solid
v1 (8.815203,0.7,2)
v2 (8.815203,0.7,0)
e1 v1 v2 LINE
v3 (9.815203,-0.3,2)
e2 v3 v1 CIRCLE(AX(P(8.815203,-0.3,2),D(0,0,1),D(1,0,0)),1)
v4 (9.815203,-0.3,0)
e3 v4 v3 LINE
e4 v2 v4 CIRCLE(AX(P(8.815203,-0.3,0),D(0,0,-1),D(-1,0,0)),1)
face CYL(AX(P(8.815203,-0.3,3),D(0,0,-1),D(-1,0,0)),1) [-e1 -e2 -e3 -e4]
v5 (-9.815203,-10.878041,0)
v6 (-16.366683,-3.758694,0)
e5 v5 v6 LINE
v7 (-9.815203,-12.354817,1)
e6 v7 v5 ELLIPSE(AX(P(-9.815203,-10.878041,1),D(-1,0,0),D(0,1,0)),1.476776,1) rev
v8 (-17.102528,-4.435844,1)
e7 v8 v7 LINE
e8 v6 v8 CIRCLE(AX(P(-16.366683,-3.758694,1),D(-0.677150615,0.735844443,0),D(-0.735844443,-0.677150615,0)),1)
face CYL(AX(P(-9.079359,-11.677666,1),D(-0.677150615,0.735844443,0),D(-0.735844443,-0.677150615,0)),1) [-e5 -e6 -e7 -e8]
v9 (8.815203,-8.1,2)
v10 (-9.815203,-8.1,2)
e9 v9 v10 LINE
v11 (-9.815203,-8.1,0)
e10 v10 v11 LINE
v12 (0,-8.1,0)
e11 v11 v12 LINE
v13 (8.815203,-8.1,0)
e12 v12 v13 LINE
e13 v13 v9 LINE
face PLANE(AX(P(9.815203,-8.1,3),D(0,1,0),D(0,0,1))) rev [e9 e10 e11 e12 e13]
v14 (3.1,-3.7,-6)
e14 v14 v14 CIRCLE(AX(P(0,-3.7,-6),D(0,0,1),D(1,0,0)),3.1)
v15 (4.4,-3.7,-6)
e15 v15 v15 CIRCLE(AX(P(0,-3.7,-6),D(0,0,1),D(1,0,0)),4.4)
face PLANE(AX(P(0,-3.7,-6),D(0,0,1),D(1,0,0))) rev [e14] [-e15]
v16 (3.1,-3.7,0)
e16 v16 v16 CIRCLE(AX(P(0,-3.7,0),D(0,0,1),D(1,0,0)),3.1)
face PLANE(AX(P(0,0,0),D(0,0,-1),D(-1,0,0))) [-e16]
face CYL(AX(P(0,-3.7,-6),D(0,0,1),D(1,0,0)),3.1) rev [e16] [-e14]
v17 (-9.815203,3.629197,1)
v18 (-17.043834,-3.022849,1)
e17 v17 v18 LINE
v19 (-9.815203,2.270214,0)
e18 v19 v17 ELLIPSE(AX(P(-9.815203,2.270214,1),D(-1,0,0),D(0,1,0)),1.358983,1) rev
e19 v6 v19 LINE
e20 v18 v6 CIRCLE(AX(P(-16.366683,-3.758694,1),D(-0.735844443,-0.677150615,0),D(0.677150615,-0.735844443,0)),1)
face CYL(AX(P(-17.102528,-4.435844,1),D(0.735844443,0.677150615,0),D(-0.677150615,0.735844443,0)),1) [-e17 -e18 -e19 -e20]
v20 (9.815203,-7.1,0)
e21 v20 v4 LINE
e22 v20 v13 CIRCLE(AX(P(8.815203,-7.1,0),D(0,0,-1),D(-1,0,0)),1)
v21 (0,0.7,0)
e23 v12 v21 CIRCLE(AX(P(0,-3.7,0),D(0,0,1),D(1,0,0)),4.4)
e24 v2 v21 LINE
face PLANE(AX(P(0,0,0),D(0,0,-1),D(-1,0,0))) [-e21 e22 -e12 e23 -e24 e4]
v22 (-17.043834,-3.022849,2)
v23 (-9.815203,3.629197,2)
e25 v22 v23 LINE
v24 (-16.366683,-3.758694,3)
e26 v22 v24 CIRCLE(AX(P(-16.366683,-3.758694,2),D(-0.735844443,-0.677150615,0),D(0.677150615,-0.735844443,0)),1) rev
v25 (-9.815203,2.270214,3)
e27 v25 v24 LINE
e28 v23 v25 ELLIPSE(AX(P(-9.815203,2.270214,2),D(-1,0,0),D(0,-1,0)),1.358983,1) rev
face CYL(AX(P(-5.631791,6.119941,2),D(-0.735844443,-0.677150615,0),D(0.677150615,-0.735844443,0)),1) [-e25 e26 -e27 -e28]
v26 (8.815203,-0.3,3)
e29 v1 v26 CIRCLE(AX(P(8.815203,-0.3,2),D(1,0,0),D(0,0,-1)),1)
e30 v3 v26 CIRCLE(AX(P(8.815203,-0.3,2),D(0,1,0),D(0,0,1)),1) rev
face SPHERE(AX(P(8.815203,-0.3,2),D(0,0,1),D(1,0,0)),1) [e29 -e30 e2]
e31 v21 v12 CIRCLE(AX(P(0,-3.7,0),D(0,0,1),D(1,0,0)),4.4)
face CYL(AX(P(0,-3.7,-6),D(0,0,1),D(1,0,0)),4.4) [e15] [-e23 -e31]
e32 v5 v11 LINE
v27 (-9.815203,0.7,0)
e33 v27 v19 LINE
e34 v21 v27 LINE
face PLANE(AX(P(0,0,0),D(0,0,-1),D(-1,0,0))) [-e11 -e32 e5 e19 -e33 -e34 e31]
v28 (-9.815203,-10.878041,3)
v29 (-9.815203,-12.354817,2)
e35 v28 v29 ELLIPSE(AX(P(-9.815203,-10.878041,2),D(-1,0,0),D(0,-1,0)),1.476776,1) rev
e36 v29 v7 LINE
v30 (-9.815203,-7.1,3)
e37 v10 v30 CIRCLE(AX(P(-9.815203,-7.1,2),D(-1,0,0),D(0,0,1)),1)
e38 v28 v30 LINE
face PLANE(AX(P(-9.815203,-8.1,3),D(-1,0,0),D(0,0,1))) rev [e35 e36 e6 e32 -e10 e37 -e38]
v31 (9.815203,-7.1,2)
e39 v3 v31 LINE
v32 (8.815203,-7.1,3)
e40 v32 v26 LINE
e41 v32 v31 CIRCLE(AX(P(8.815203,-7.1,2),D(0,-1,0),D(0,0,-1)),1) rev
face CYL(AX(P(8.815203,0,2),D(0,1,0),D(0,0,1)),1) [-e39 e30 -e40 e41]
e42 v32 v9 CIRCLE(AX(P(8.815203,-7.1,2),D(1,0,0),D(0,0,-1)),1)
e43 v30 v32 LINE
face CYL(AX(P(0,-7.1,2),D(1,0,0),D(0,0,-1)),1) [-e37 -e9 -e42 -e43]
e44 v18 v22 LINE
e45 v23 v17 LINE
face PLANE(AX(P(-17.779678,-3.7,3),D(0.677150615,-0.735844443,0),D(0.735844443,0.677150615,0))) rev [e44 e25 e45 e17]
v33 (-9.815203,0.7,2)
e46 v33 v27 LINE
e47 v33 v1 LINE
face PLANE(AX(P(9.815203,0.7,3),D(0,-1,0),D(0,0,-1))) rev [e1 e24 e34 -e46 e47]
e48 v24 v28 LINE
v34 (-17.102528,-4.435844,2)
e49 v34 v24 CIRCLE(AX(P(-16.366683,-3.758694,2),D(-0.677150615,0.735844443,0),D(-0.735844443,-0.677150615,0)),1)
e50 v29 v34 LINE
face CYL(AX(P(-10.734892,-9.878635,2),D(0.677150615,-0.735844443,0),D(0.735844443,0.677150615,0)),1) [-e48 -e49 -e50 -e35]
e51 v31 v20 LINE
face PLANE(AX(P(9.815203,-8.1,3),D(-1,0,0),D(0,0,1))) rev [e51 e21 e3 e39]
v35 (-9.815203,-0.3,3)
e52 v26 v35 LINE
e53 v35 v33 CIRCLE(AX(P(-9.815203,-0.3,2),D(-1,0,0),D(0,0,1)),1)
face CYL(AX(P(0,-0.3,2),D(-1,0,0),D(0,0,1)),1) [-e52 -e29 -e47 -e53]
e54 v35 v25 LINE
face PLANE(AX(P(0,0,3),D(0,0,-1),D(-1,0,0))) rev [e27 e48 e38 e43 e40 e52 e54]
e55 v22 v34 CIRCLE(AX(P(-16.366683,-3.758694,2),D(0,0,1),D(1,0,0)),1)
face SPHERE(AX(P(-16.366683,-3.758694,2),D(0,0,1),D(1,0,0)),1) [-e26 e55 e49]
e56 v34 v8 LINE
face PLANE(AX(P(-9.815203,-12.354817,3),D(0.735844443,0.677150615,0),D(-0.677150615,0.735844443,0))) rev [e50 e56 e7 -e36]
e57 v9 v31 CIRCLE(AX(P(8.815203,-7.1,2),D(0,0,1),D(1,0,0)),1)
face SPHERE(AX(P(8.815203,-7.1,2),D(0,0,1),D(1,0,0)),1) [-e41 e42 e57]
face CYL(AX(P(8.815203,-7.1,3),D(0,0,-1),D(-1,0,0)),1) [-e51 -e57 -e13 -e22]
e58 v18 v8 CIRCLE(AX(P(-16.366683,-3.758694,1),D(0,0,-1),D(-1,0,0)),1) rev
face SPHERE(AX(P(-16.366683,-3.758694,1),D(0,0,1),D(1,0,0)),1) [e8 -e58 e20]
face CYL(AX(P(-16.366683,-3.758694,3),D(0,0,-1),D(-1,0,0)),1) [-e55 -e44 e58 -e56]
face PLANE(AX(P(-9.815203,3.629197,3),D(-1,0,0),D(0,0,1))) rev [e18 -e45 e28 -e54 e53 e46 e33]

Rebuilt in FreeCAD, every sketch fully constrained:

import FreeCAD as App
import Part
import Sketcher

V = App.Vector


def edges_at(feature, points):
    """Names of the edges that pass closest to the given points."""
    edges = feature.Shape.Edges
    near = lambda p: min(range(len(edges)), key=lambda i: edges[i].distToShape(Part.Vertex(*p))[0])
    return sorted({f"Edge{near(p) + 1}" for p in points})

doc = App.newDocument("Part")
params = doc.addObject("Spreadsheet::Sheet", "Params")
for row, (alias, value) in enumerate([
    ("sketch1_diameter", "8.8 mm"),
    ("sketch1_diameter2", "6.2 mm"),
    ("pad1_length", "6 mm"),
    ("sketch2_height", "8.8 mm"),
    ("pad2_length", "3 mm"),
    ("fillet_radius", "1 mm"),
], start=1):
    params.set(f"A{row}", alias)
    params.set(f"B{row}", "=" + value)
    params.setAlias(f"B{row}", alias)

body = doc.addObject("PartDesign::Body", "Body")

sketch1 = body.newObject("Sketcher::SketchObject", "Sketch")
sketch1.AttachmentSupport = (doc.getObject("XY_Plane"), [""])
sketch1.MapMode = "FlatFace"
sketch1.addGeometry(Part.Circle(V(0, -3.7, 0), V(0, 0, 1), 4.4), False)
sketch1.addGeometry(Part.Circle(V(0, -3.7, 0), V(0, 0, 1), 3.1), False)
sketch1.addConstraint(Sketcher.Constraint("Coincident", 1, 3, 0, 3))
sketch1.addConstraint(Sketcher.Constraint("PointOnObject", 0, 3, -2))
sketch1.addConstraint(Sketcher.Constraint("Diameter", 0, 8.8))
sketch1.addConstraint(Sketcher.Constraint("Diameter", 1, 6.2))
sketch1.addConstraint(Sketcher.Constraint("DistanceY", 0, 3, -1, 1, 3.7))
sketch1.setExpression("Constraints[2]", "Params.sketch1_diameter")
sketch1.setExpression("Constraints[3]", "Params.sketch1_diameter2")
pad1 = body.newObject("PartDesign::Pad", "Pad")
pad1.Profile = sketch1
pad1.setExpression("Length", "Params.pad1_length")
pad1.Reversed = True

sketch2 = body.newObject("Sketcher::SketchObject", "Sketch001")
sketch2.AttachmentSupport = (doc.getObject("XY_Plane"), [""])
sketch2.MapMode = "FlatFace"
sketch2.addGeometry(Part.LineSegment(V(9.815203, -8.1, 0), V(9.815203, 0.7, 0)), False)
sketch2.addGeometry(Part.LineSegment(V(9.815203, 0.7, 0), V(-9.815203, 0.7, 0)), False)
sketch2.addGeometry(Part.LineSegment(V(-9.815203, 0.7, 0), V(-9.815203, 3.629197, 0)), False)
sketch2.addGeometry(Part.LineSegment(V(-9.815203, 3.629197, 0), V(-17.779678, -3.7, 0)), False)
sketch2.addGeometry(Part.LineSegment(V(-17.779678, -3.7, 0), V(-9.815203, -12.354817, 0)), False)
sketch2.addGeometry(Part.LineSegment(V(-9.815203, -12.354817, 0), V(-9.815203, -8.1, 0)), False)
sketch2.addGeometry(Part.LineSegment(V(-9.815203, -8.1, 0), V(9.815203, -8.1, 0)), False)
sketch2.addConstraint(Sketcher.Constraint("Coincident", 0, 2, 1, 1))
sketch2.addConstraint(Sketcher.Constraint("Coincident", 1, 2, 2, 1))
sketch2.addConstraint(Sketcher.Constraint("Coincident", 2, 2, 3, 1))
sketch2.addConstraint(Sketcher.Constraint("Coincident", 3, 2, 4, 1))
sketch2.addConstraint(Sketcher.Constraint("Coincident", 4, 2, 5, 1))
sketch2.addConstraint(Sketcher.Constraint("Coincident", 5, 2, 6, 1))
sketch2.addConstraint(Sketcher.Constraint("Coincident", 6, 2, 0, 1))
sketch2.addConstraint(Sketcher.Constraint("Vertical", 0))
sketch2.addConstraint(Sketcher.Constraint("Horizontal", 1))
sketch2.addConstraint(Sketcher.Constraint("Vertical", 2))
sketch2.addConstraint(Sketcher.Constraint("Vertical", 5))
sketch2.addConstraint(Sketcher.Constraint("Horizontal", 6))
sketch2.addConstraint(Sketcher.Constraint("Perpendicular", 3, 4))
sketch2.addConstraint(Sketcher.Constraint("Vertical", 2, 2, 4, 2))
sketch2.addConstraint(Sketcher.Constraint("DistanceY", 0, 1, 0, 2, 8.8))
sketch2.addConstraint(Sketcher.Constraint("DistanceY", -1, 1, 0, 2, 0.7))
sketch2.addConstraint(Sketcher.Constraint("DistanceY", 3, 2, -1, 1, 3.7))
sketch2.addConstraint(Sketcher.Constraint("Distance", 4, 11.761748))
sketch2.addConstraint(Sketcher.Constraint("DistanceX", 1, 2, 1, 1, 19.630407))
sketch2.addConstraint(Sketcher.Constraint("DistanceY", 2, 1, 2, 2, 2.929197))
sketch2.addConstraint(Sketcher.Constraint("DistanceX", 3, 2, -1, 1, 17.779678))
sketch2.setExpression("Constraints[14]", "Params.sketch2_height")
pad2 = body.newObject("PartDesign::Pad", "Pad001")
pad2.Profile = sketch2
pad2.setExpression("Length", "Params.pad2_length")
doc.recompute()

fillet = body.newObject("PartDesign::Fillet", "Fillet")
fillet.Base = (pad2, edges_at(pad2, [
    (-13.797, -8.027, 0),
    (-17.78, -3.7, 1.5),
    (9.815, -8.1, 1.5),
    (9.815, 0.7, 1.5),
    (-13.797, -0.035, 0),
    (-13.797, -8.027, 3),
    (0, -8.1, 3),
    (9.815, -3.7, 3),
    (0, 0.7, 3),
    (-13.797, -0.035, 3),
]))
fillet.setExpression("Radius", "Params.fillet_radius")

doc.recompute()
